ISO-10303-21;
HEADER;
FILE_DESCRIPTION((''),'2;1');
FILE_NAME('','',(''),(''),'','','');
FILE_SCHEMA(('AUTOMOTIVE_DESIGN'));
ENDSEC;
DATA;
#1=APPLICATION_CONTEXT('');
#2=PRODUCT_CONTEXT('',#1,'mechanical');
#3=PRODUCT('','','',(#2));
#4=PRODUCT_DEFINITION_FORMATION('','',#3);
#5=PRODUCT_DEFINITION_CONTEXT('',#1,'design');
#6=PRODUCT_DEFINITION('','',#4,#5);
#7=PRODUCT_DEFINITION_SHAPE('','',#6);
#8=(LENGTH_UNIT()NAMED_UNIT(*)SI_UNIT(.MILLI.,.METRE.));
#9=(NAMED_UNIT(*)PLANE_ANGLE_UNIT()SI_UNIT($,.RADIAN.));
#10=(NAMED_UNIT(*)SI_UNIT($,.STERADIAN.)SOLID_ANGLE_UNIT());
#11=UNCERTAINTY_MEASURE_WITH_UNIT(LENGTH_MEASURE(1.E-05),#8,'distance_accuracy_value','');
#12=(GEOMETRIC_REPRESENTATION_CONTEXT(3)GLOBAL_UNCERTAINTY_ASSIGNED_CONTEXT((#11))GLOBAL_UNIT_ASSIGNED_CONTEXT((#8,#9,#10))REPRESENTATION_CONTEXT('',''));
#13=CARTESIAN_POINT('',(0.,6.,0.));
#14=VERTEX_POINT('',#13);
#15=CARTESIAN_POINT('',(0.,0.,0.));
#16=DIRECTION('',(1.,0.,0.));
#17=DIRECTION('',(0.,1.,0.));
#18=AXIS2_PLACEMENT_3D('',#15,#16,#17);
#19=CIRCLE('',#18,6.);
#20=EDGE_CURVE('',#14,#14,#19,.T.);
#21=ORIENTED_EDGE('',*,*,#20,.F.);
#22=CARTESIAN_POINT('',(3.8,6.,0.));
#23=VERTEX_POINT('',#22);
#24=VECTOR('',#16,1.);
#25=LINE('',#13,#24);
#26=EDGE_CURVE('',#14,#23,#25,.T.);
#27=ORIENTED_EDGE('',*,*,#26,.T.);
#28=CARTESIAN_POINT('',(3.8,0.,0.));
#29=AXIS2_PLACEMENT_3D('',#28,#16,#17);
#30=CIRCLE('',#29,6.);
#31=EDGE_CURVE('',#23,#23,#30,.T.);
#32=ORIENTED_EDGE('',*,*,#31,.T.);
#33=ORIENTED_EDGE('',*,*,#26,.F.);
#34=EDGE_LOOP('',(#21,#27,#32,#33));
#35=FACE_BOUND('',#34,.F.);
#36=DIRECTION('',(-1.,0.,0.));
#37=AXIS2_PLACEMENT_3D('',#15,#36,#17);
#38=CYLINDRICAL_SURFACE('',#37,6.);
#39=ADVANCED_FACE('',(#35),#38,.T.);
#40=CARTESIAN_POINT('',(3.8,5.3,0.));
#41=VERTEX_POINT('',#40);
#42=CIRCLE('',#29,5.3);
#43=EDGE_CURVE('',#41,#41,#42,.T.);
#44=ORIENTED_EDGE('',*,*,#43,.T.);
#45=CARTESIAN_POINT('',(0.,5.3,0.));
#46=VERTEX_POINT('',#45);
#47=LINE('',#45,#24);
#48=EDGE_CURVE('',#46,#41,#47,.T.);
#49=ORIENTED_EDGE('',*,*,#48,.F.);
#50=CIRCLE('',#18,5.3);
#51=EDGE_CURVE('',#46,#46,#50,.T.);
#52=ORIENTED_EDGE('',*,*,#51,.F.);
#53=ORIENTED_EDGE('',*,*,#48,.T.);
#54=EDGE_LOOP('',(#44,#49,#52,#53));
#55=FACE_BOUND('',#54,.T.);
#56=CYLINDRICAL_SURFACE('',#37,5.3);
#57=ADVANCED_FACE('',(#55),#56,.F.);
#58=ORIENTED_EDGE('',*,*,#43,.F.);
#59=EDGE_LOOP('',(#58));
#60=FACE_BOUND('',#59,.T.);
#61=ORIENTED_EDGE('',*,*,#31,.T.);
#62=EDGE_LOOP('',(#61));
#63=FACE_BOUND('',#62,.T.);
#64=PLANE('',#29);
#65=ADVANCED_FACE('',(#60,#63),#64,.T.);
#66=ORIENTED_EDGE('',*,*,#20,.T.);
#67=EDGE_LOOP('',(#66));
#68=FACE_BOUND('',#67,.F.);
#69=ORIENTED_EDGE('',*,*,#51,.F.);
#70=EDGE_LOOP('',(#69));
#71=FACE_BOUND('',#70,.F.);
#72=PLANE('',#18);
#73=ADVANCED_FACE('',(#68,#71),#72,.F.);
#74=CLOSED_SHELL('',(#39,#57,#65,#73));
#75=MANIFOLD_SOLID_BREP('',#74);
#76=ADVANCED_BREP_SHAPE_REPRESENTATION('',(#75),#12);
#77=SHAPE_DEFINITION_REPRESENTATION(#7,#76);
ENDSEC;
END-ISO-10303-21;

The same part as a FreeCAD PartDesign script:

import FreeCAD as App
import Part
import Sketcher

doc = App.newDocument("Part")
params = doc.addObject("Spreadsheet::Sheet", "Params")
for row, (alias, value) in enumerate([
    ("sketch1_diameter", "12 mm"),
    ("sketch1_diameter2", "10.6 mm"),
    ("pad1_length", "3.8 mm"),
], start=1):
    params.set(f"A{row}", alias)
    params.set(f"B{row}", "=" + value)
    params.setAlias(f"B{row}", alias)

body = doc.addObject("PartDesign::Body", "Body")

# Sketch on YZ plane
sketch1 = body.newObject("Sketcher::SketchObject", "Sketch")
sketch1.AttachmentSupport = (doc.getObject("YZ_Plane"), [""])
sketch1.MapMode = "FlatFace"
sketch1.addGeometry(Part.Circle(App.Vector(0, 0, 0), App.Vector(0, 0, 1), 6), False)
sketch1.addGeometry(Part.Circle(App.Vector(0, 0, 0), App.Vector(0, 0, 1), 5), False)
sketch1.addConstraint(Sketcher.Constraint("Coincident", 0, 3, -1, 1))
sketch1.addConstraint(Sketcher.Constraint("Coincident", 1, 3, -1, 1))
sketch1.addConstraint(Sketcher.Constraint("Diameter", 0, 12.0))
sketch1.addConstraint(Sketcher.Constraint("Diameter", 1, 10.6))
sketch1.setExpression("Constraints[2]", "Params.sketch1_diameter")
sketch1.setExpression("Constraints[3]", "Params.sketch1_diameter2")
pad1 = body.newObject("PartDesign::Pad", "Pad")
pad1.Profile = sketch1
pad1.setExpression("Length", "Params.pad1_length")

doc.recompute()
